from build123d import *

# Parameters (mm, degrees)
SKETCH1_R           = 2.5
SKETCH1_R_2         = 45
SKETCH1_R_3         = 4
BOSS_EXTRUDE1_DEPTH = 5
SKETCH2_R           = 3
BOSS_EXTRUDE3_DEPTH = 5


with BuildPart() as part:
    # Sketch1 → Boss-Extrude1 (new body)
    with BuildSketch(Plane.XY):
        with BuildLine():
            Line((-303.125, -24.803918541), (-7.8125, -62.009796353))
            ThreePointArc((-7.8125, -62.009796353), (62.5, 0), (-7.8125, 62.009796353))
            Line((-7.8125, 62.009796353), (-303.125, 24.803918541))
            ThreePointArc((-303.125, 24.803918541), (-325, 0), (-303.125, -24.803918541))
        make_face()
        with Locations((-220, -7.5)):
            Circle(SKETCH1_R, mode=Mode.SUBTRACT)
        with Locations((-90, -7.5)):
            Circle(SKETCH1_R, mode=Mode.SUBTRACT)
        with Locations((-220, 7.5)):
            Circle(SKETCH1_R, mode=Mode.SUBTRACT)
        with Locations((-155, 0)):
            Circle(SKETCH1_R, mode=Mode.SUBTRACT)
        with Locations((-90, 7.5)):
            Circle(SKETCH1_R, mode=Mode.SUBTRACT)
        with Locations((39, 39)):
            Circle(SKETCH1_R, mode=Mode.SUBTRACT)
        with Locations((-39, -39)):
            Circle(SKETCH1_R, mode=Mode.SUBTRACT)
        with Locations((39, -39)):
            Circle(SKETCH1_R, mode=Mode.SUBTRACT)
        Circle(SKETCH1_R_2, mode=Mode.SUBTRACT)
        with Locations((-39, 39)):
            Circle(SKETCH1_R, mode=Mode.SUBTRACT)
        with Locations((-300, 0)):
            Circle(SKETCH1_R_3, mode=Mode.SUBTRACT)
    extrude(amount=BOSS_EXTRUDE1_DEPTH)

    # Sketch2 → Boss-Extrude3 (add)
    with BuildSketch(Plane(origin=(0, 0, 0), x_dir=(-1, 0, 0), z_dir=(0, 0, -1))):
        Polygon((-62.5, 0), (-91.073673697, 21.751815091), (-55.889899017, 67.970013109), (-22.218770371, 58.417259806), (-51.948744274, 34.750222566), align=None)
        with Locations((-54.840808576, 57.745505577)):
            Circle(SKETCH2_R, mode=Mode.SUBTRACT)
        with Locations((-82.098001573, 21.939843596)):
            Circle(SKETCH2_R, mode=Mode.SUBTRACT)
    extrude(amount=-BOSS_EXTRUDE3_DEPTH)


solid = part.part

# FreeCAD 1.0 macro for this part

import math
import FreeCAD as App
import Part
import Sketcher

V = App.Vector
Q = App.Units.Quantity

doc = App.newDocument("Part")
body = doc.addObject("PartDesign::Body", "Body")

sketch1 = doc.addObject("Sketcher::SketchObject", "Sketch")
body.addObject(sketch1)
sketch1.AttachmentSupport = (doc.XY_Plane, [""])
sketch1.MapMode = "FlatFace"
sketch1.addGeometry([
    Part.LineSegment(V(-303.1, -24.8, 0), V(-7.8, -62, 0)),
    Part.ArcOfCircle(Part.Circle(V(0, 0, 0), V(0, 0, 1), 62.5), math.radians(-97), math.radians(97)),
    Part.LineSegment(V(-7.8, 62, 0), V(-303.1, 24.8, 0)),
    Part.ArcOfCircle(Part.Circle(V(-300, 0, 0), V(0, 0, 1), 25), math.radians(97), math.radians(263)),
    Part.Circle(V(-220, -7.5, 0), V(0, 0, 1), 2.5),
    Part.Circle(V(-39, -39, 0), V(0, 0, 1), 2.5),
    Part.Circle(V(39, -39, 0), V(0, 0, 1), 2.5),
    Part.Circle(V(-90, -7.5, 0), V(0, 0, 1), 2.5),
    Part.Circle(V(-300, 0, 0), V(0, 0, 1), 4),
    Part.Circle(V(-220, 7.5, 0), V(0, 0, 1), 2.5),
    Part.Circle(V(-155, 0, 0), V(0, 0, 1), 2.5),
    Part.Circle(V(-90, 7.5, 0), V(0, 0, 1), 2.5),
    Part.Circle(V(0, 0, 0), V(0, 0, 1), 45),
    Part.Circle(V(-39, 39, 0), V(0, 0, 1), 2.5),
    Part.Circle(V(39, 39, 0), V(0, 0, 1), 2.5),
], False)
sketch1.addConstraint([
    Sketcher.Constraint("Tangent", 0, 2, 1, 1),
    Sketcher.Constraint("Tangent", 1, 2, 2, 1),
    Sketcher.Constraint("Tangent", 2, 2, 3, 1),
    Sketcher.Constraint("Tangent", 3, 2, 0, 1),
    Sketcher.Constraint("Coincident", 1, 3, -1, 1),
    Sketcher.Constraint("Coincident", 12, 3, -1, 1),
    Sketcher.Constraint("Coincident", 8, 3, 3, 3),
    Sketcher.Constraint("Equal", 4, 5),
    Sketcher.Constraint("Equal", 5, 6),
    Sketcher.Constraint("Equal", 6, 7),
    Sketcher.Constraint("Equal", 7, 9),
    Sketcher.Constraint("Equal", 9, 10),
    Sketcher.Constraint("Equal", 10, 11),
    Sketcher.Constraint("Equal", 11, 13),
    Sketcher.Constraint("Equal", 13, 14),
    Sketcher.Constraint("Symmetric", 6, 3, 13, 3, -1, 1),
    Sketcher.Constraint("Symmetric", 5, 3, 14, 3, -1, 1),
    Sketcher.Constraint("Symmetric", 5, 3, 6, 3, -2),
    Sketcher.Constraint("Symmetric", 4, 3, 9, 3, -1),
    Sketcher.Constraint("Symmetric", 7, 3, 11, 3, -1),
    Sketcher.Constraint("PointOnObject", 3, 3, -1),
    Sketcher.Constraint("PointOnObject", 10, 3, -1),
    Sketcher.Constraint("Horizontal", 4, 3, 7, 3),
    Sketcher.Constraint("Diameter", 4, Q("5 mm")),
    Sketcher.Constraint("Diameter", 8, Q("8 mm")),
    Sketcher.Constraint("Diameter", 12, Q("90 mm")),
    Sketcher.Constraint("Radius", 3, Q("25 mm")),
    Sketcher.Constraint("Radius", 1, Q("62.5 mm")),
    Sketcher.Constraint("DistanceX", 3, 3, -1, 1, Q("300 mm")),
    Sketcher.Constraint("DistanceX", 4, 3, -1, 1, Q("220 mm")),
    Sketcher.Constraint("DistanceX", 5, 3, -1, 1, Q("39 mm")),
    Sketcher.Constraint("DistanceY", 5, 3, -1, 1, Q("39 mm")),
    Sketcher.Constraint("DistanceX", 7, 3, -1, 1, Q("90 mm")),
    Sketcher.Constraint("DistanceX", 10, 3, -1, 1, Q("155 mm")),
    Sketcher.Constraint("DistanceY", 4, 3, 9, 3, Q("15 mm")),
])
pad1 = doc.addObject("PartDesign::Pad", "Pad")
body.addObject(pad1)
pad1.Profile = sketch1
pad1.Length = 5

sketch2 = doc.addObject("Sketcher::SketchObject", "Sketch001")
body.addObject(sketch2)
sketch2.AttachmentSupport = (doc.XY_Plane, [""])
sketch2.MapMode = "FlatFace"
sketch2.addGeometry([
    Part.LineSegment(V(91.1, 21.8, 0), V(62.5, 0, 0)),
    Part.LineSegment(V(62.5, 0, 0), V(51.9, 34.8, 0)),
    Part.LineSegment(V(51.9, 34.8, 0), V(22.2, 58.4, 0)),
    Part.LineSegment(V(22.2, 58.4, 0), V(55.9, 68, 0)),
    Part.LineSegment(V(55.9, 68, 0), V(91.1, 21.8, 0)),
    Part.Circle(V(82.1, 21.9, 0), V(0, 0, 1), 3),
    Part.Circle(V(54.8, 57.7, 0), V(0, 0, 1), 3),
], False)
sketch2.addConstraint([
    Sketcher.Constraint("Coincident", 0, 2, 1, 1),
    Sketcher.Constraint("Coincident", 1, 2, 2, 1),
    Sketcher.Constraint("Coincident", 2, 2, 3, 1),
    Sketcher.Constraint("Coincident", 3, 2, 4, 1),
    Sketcher.Constraint("Coincident", 4, 2, 0, 1),
    Sketcher.Constraint("Equal", 5, 6),
    Sketcher.Constraint("PointOnObject", 0, 2, -1),
    Sketcher.Constraint("Perpendicular", 0, 4),
    Sketcher.Constraint("Diameter", 5, Q("6 mm")),
    Sketcher.Constraint("Distance", 2, Q("38 mm")),
    Sketcher.Constraint("Distance", 3, Q("35 mm")),
    Sketcher.Constraint("DistanceX", -1, 1, 0, 2, Q("62.5 mm")),
    Sketcher.Constraint("DistanceX", -1, 1, 5, 3, Q("82.098002 mm")),
    Sketcher.Constraint("DistanceX", -1, 1, 3, 2, Q("55.889899 mm")),
    Sketcher.Constraint("DistanceY", 4, 2, 3, 2, Q("46.218198 mm")),
    Sketcher.Constraint("Distance", 0, Q("35.910949 mm")),
    Sketcher.Constraint("Distance", 1, Q("36.316759 mm")),
    Sketcher.Constraint("DistanceX", -1, 1, 6, 3, Q("54.840809 mm")),
    Sketcher.Constraint("DistanceX", -1, 1, 2, 2, Q("22.21877 mm")),
    Sketcher.Constraint("DistanceY", 5, 3, 6, 3, Q("35.805662 mm")),
    Sketcher.Constraint("DistanceY", 5, 3, 1, 2, Q("12.810379 mm")),
])
pad2 = doc.addObject("PartDesign::Pad", "Pad001")
body.addObject(pad2)
pad2.Profile = sketch2
pad2.Length = 5

doc.recompute()
